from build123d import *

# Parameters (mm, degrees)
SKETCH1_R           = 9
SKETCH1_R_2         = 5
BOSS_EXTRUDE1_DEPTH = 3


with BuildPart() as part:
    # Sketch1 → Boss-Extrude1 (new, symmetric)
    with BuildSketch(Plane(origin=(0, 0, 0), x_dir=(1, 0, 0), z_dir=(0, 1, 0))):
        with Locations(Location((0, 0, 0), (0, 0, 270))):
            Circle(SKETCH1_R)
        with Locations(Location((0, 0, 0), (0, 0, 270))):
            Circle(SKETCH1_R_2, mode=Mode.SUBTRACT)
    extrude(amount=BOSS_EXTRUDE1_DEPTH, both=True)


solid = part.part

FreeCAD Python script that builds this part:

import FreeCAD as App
import Part
import Sketcher

doc = App.newDocument("Part")
body = doc.addObject("PartDesign::Body", "Body")

sketch1 = body.newObject("Sketcher::SketchObject", "Sketch")
sketch1.AttachmentSupport = (doc.getObject("XZ_Plane"), [""])
sketch1.MapMode = "FlatFace"
sketch1.addGeometry(Part.Circle(App.Vector(0, 0, 0), App.Vector(0, 0, 1), 9), False)
sketch1.addGeometry(Part.Circle(App.Vector(0, 0, 0), App.Vector(0, 0, 1), 5), False)
sketch1.addConstraint(Sketcher.Constraint("Coincident", 0, 3, -1, 1))
sketch1.addConstraint(Sketcher.Constraint("Coincident", 1, 3, -1, 1))
sketch1.addConstraint(Sketcher.Constraint("Diameter", 0, 18.0))
sketch1.addConstraint(Sketcher.Constraint("Diameter", 1, 10.0))
pad1 = body.newObject("PartDesign::Pad", "Pad")
pad1.Profile = sketch1
pad1.Length = 6
pad1.Midplane = True

doc.recompute()
